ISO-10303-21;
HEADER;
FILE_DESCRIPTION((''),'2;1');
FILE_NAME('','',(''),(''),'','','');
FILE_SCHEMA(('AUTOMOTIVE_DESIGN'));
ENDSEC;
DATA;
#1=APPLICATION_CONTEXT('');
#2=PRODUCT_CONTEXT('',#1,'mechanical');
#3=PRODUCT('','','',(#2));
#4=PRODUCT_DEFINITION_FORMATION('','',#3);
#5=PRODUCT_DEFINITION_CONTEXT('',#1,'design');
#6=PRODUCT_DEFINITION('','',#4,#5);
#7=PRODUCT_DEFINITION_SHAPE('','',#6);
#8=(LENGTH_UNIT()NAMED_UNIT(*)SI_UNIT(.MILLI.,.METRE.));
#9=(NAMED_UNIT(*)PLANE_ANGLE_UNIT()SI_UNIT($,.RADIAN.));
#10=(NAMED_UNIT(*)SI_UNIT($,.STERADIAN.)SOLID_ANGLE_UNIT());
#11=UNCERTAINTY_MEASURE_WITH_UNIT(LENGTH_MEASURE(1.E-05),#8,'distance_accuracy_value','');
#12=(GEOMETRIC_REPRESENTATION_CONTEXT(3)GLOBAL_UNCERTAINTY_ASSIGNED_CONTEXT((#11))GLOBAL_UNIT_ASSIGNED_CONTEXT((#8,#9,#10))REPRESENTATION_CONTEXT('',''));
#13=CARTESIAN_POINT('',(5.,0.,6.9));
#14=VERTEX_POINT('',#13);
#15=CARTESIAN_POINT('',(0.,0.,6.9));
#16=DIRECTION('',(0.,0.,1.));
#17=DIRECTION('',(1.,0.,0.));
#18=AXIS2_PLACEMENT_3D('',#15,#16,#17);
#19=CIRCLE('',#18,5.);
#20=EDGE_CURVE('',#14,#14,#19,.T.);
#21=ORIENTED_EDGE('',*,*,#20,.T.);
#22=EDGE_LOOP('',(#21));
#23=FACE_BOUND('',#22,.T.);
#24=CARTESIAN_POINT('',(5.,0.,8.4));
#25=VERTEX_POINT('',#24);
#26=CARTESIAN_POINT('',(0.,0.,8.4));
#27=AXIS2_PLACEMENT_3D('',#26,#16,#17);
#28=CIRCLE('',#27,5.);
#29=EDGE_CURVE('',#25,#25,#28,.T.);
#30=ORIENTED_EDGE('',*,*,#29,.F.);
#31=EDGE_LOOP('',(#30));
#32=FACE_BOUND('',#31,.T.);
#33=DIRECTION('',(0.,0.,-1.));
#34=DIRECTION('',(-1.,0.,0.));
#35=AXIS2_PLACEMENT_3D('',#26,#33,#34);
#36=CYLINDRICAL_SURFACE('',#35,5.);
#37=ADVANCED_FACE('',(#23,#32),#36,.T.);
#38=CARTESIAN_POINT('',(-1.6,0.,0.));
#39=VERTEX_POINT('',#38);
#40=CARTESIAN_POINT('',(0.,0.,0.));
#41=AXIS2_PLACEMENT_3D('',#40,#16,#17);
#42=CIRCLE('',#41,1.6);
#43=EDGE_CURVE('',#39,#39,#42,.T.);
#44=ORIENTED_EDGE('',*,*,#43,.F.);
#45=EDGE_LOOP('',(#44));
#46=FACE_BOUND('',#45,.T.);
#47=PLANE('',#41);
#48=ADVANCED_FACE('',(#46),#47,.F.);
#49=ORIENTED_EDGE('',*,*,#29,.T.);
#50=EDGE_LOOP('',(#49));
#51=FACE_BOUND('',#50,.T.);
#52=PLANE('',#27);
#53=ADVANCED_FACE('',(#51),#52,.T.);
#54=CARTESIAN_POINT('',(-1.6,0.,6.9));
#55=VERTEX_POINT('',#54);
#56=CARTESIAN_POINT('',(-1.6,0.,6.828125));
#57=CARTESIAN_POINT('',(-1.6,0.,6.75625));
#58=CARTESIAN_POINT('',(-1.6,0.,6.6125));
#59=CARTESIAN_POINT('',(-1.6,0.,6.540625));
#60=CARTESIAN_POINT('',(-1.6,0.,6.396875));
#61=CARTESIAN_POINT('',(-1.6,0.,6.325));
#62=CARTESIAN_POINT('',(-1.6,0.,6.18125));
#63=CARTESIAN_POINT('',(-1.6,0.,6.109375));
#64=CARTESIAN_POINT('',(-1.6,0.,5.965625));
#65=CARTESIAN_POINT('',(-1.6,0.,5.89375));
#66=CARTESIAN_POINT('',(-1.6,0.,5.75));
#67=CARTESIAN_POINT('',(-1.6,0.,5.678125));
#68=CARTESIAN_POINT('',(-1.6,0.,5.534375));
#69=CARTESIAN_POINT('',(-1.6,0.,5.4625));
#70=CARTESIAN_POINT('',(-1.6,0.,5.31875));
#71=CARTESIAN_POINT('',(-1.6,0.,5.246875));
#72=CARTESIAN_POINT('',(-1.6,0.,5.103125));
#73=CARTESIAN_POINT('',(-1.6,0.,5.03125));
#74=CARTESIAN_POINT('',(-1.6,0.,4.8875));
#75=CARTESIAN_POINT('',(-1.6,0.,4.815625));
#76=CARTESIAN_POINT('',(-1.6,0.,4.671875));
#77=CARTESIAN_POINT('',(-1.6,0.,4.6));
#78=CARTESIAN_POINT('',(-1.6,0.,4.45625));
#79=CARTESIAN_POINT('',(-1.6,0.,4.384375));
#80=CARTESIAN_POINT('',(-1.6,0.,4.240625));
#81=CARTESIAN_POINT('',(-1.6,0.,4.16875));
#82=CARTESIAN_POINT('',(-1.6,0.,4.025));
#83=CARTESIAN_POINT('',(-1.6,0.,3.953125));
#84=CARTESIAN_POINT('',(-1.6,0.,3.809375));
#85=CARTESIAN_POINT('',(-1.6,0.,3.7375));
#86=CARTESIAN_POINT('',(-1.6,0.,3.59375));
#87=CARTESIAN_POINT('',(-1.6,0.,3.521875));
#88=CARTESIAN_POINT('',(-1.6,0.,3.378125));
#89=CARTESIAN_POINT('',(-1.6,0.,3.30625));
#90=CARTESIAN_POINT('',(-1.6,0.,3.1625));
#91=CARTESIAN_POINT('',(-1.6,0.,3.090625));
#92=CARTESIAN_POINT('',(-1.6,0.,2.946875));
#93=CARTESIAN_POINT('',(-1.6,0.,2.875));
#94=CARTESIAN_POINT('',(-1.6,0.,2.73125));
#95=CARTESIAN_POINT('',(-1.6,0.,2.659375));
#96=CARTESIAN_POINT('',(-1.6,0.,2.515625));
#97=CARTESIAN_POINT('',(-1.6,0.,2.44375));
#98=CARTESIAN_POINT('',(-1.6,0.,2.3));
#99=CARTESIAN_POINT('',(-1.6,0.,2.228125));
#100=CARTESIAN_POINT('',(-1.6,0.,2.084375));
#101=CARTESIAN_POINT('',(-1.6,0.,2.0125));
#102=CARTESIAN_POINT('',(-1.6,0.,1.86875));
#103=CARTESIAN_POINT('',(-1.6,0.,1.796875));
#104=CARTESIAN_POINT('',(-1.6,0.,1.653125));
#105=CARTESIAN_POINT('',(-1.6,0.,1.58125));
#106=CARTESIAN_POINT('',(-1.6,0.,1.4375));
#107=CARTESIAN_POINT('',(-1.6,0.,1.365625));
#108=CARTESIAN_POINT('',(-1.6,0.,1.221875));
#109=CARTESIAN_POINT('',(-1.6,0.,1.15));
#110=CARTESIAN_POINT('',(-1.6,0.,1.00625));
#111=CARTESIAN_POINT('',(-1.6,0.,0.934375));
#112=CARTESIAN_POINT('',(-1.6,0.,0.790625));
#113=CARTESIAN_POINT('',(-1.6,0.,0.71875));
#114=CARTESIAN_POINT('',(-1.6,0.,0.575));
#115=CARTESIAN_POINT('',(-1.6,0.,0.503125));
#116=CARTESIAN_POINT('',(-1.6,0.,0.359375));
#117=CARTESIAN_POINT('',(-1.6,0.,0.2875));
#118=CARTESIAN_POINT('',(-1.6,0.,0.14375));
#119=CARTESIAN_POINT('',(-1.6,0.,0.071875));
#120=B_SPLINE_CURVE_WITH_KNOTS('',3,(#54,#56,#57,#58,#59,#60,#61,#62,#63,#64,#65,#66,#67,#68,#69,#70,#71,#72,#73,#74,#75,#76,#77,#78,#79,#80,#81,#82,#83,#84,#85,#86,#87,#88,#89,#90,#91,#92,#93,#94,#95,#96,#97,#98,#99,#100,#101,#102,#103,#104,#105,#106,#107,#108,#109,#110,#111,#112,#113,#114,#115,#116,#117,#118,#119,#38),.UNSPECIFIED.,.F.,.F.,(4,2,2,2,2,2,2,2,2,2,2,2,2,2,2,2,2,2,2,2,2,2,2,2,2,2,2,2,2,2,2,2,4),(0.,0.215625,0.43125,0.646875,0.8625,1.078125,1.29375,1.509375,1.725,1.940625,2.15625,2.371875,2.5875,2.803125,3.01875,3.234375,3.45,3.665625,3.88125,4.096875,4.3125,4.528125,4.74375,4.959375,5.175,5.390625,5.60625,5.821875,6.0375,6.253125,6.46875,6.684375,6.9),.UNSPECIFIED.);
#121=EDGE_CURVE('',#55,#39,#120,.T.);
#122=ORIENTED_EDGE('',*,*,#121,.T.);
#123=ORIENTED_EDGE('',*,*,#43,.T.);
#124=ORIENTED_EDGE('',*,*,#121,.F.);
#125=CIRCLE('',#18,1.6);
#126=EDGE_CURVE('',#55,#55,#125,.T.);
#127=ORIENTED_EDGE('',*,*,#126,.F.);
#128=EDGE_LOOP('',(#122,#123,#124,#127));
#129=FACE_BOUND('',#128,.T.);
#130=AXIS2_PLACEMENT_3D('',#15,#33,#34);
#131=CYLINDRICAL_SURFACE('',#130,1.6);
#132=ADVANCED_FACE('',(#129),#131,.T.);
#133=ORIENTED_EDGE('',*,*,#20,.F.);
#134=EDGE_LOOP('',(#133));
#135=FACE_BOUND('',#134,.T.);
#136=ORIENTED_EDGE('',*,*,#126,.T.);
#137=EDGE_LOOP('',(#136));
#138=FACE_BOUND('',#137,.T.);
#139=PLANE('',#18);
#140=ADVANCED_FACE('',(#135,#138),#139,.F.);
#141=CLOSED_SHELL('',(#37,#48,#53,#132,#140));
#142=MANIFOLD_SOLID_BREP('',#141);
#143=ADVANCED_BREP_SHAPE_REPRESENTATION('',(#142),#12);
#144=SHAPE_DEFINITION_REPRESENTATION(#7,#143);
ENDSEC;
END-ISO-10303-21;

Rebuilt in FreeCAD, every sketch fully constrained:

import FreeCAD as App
import Part
import Sketcher

doc = App.newDocument("Part")
params = doc.addObject("Spreadsheet::Sheet", "Params")
for row, (alias, value) in enumerate([
    ("sketch1_diameter", "3.2 mm"),
    ("pad1_length", "6.9 mm"),
    ("sketch2_diameter", "10 mm"),
    ("pad2_length", "1.5 mm"),
], start=1):
    params.set(f"A{row}", alias)
    params.set(f"B{row}", "=" + value)
    params.setAlias(f"B{row}", alias)

body = doc.addObject("PartDesign::Body", "Body")

# Sketch on XY plane
sketch1 = body.newObject("Sketcher::SketchObject", "Sketch")
sketch1.AttachmentSupport = (doc.getObject("XY_Plane"), [""])
sketch1.MapMode = "FlatFace"
sketch1.addGeometry(Part.Circle(App.Vector(0, 0, 0), App.Vector(0, 0, 1), 1.6), False)
sketch1.addConstraint(Sketcher.Constraint("Coincident", 0, 3, -1, 1))
sketch1.addConstraint(Sketcher.Constraint("Diameter", 0, 3.2))
sketch1.setExpression("Constraints[1]", "Params.sketch1_diameter")
pad1 = body.newObject("PartDesign::Pad", "Pad")
pad1.Profile = sketch1
pad1.setExpression("Length", "Params.pad1_length")

# Sketch on XY plane
sketch2 = body.newObject("Sketcher::SketchObject", "Sketch001")
sketch2.AttachmentSupport = (doc.getObject("XY_Plane"), [""])
sketch2.MapMode = "FlatFace"
sketch2.AttachmentOffset = App.Placement(App.Vector(0, 0, 6.9), App.Rotation())
sketch2.addGeometry(Part.Circle(App.Vector(0, 0, 0), App.Vector(0, 0, 1), 5), False)
sketch2.addConstraint(Sketcher.Constraint("Coincident", 0, 3, -1, 1))
sketch2.addConstraint(Sketcher.Constraint("Diameter", 0, 10.0))
sketch2.setExpression("Constraints[1]", "Params.sketch2_diameter")
pad2 = body.newObject("PartDesign::Pad", "Pad001")
pad2.Profile = sketch2
pad2.setExpression("Length", "Params.pad2_length")

doc.recompute()
